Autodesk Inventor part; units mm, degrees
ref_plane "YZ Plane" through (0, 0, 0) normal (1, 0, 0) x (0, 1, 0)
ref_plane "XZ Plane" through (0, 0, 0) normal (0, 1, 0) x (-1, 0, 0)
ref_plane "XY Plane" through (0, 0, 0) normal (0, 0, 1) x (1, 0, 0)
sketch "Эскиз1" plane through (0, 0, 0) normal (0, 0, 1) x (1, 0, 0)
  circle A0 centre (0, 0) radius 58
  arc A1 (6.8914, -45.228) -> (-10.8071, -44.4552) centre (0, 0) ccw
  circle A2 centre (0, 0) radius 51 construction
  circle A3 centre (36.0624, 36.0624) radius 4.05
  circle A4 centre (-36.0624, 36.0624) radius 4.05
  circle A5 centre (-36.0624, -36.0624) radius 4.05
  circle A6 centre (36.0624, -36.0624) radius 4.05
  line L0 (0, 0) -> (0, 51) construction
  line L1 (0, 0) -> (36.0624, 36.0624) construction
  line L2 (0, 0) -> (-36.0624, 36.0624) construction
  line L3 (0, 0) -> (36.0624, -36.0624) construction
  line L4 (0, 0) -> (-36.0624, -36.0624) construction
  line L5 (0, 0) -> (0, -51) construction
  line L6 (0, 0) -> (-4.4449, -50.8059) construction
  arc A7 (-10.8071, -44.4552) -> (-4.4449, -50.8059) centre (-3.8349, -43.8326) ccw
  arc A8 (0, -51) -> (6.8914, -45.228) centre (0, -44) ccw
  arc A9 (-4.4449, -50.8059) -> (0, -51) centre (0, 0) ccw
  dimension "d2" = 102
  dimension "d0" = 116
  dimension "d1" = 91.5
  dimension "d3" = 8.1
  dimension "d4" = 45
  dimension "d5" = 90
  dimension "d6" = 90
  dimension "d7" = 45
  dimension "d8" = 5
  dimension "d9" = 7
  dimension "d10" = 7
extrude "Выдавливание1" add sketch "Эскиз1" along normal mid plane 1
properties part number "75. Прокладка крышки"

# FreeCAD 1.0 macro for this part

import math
import FreeCAD as App
import Part
import Sketcher

V = App.Vector
Q = App.Units.Quantity

doc = App.newDocument("Part")
params = doc.addObject("Spreadsheet::Sheet", "Params")
for row, (alias, value) in enumerate([
    ("sketch1_diameter", "116 mm"),
    ("sketch1_radius", "7 mm"),
    ("sketch1_diameter2", "8.1 mm"),
    ("sketch1_radius2", "45.75 mm"),
    ("pad1_length", "1 mm"),
], start=1):
    params.set(f"A{row}", alias)
    params.set(f"B{row}", "=" + value)
    params.setAlias(f"B{row}", alias)

body = doc.addObject("PartDesign::Body", "Body")

# Sketch on XY plane
sketch1 = doc.addObject("Sketcher::SketchObject", "Sketch")
body.addObject(sketch1)
sketch1.AttachmentSupport = (doc.XY_Plane, [""])
sketch1.MapMode = "FlatFace"
sketch1.addGeometry(Part.Circle(V(0, 0, 0), V(0, 0, 1), 58), False)
sketch1.addGeometry(Part.Circle(V(-36.1, -36.1, 0), V(0, 0, 1), 4), False)
sketch1.addGeometry(Part.Circle(V(36.1, -36.1, 0), V(0, 0, 1), 4), False)
sketch1.addGeometry(Part.ArcOfCircle(Part.Circle(V(0, 0, 0), V(0, 0, 1), 45.8), math.radians(-81), math.radians(256)), False)
sketch1.addGeometry(Part.ArcOfCircle(Part.Circle(V(0, -44, 0), V(0, 0, 1), 7), math.radians(-90), math.radians(-10)), False)
sketch1.addGeometry(Part.ArcOfCircle(Part.Circle(V(0, 0, 0), V(0, 0, 1), 51), math.radians(-95), math.radians(-90)), False)
sketch1.addGeometry(Part.ArcOfCircle(Part.Circle(V(-3.8, -43.8, 0), V(0, 0, 1), 7), math.radians(-175), math.radians(-95)), False)
sketch1.addGeometry(Part.Circle(V(-36.1, 36.1, 0), V(0, 0, 1), 4), False)
sketch1.addGeometry(Part.Circle(V(36.1, 36.1, 0), V(0, 0, 1), 4), False)
sketch1.addConstraint(Sketcher.Constraint("Coincident", 3, 1, 4, 2))
sketch1.addConstraint(Sketcher.Constraint("Tangent", 4, 1, 5, 2))
sketch1.addConstraint(Sketcher.Constraint("Tangent", 5, 1, 6, 2))
sketch1.addConstraint(Sketcher.Constraint("Coincident", 6, 1, 3, 2))
sketch1.addConstraint(Sketcher.Constraint("Coincident", 0, 3, -1, 1))
sketch1.addConstraint(Sketcher.Constraint("Coincident", 3, 3, -1, 1))
sketch1.addConstraint(Sketcher.Constraint("Equal", 1, 2))
sketch1.addConstraint(Sketcher.Constraint("Equal", 4, 6))
sketch1.addConstraint(Sketcher.Constraint("Equal", 2, 7))
sketch1.addConstraint(Sketcher.Constraint("Equal", 7, 8))
sketch1.addConstraint(Sketcher.Constraint("Symmetric", 2, 3, 7, 3, -1, 1))
sketch1.addConstraint(Sketcher.Constraint("Symmetric", 1, 3, 8, 3, -1, 1))
sketch1.addConstraint(Sketcher.Constraint("Symmetric", 1, 3, 2, 3, -2))
sketch1.addConstraint(Sketcher.Constraint("PointOnObject", 4, 3, -2))
sketch1.addConstraint(Sketcher.Constraint("PointOnObject", 4, 1, -2))
sketch1.addConstraint(Sketcher.Constraint("Diameter", 0, Q("116 mm")))
sketch1.addConstraint(Sketcher.Constraint("Radius", 4, Q("7 mm")))
sketch1.addConstraint(Sketcher.Constraint("Diameter", 1, Q("8.1 mm")))
sketch1.addConstraint(Sketcher.Constraint("Radius", 3, Q("45.75 mm")))
sketch1.addConstraint(Sketcher.Constraint("DistanceY", 4, 3, -1, 1, Q("44 mm")))
sketch1.addConstraint(Sketcher.Constraint("Radius", 5, Q("51.0174 mm")))
sketch1.addConstraint(Sketcher.Constraint("DistanceX", 5, 1, 6, 3, Q("0.61 mm")))
sketch1.addConstraint(Sketcher.Constraint("DistanceY", 5, 3, 7, 3, Q("36.045 mm")))
sketch1.addConstraint(Sketcher.Constraint("DistanceX", 3, 1, 2, 3, Q("29.171 mm")))
sketch1.setExpression("Constraints[15]", "Params.sketch1_diameter")
sketch1.setExpression("Constraints[16]", "Params.sketch1_radius")
sketch1.setExpression("Constraints[17]", "Params.sketch1_diameter2")
sketch1.setExpression("Constraints[18]", "Params.sketch1_radius2")
pad1 = doc.addObject("PartDesign::Pad", "Pad")
body.addObject(pad1)
pad1.Profile = sketch1
pad1.setExpression("Length", "Params.pad1_length")
pad1.Midplane = True

doc.recompute()
